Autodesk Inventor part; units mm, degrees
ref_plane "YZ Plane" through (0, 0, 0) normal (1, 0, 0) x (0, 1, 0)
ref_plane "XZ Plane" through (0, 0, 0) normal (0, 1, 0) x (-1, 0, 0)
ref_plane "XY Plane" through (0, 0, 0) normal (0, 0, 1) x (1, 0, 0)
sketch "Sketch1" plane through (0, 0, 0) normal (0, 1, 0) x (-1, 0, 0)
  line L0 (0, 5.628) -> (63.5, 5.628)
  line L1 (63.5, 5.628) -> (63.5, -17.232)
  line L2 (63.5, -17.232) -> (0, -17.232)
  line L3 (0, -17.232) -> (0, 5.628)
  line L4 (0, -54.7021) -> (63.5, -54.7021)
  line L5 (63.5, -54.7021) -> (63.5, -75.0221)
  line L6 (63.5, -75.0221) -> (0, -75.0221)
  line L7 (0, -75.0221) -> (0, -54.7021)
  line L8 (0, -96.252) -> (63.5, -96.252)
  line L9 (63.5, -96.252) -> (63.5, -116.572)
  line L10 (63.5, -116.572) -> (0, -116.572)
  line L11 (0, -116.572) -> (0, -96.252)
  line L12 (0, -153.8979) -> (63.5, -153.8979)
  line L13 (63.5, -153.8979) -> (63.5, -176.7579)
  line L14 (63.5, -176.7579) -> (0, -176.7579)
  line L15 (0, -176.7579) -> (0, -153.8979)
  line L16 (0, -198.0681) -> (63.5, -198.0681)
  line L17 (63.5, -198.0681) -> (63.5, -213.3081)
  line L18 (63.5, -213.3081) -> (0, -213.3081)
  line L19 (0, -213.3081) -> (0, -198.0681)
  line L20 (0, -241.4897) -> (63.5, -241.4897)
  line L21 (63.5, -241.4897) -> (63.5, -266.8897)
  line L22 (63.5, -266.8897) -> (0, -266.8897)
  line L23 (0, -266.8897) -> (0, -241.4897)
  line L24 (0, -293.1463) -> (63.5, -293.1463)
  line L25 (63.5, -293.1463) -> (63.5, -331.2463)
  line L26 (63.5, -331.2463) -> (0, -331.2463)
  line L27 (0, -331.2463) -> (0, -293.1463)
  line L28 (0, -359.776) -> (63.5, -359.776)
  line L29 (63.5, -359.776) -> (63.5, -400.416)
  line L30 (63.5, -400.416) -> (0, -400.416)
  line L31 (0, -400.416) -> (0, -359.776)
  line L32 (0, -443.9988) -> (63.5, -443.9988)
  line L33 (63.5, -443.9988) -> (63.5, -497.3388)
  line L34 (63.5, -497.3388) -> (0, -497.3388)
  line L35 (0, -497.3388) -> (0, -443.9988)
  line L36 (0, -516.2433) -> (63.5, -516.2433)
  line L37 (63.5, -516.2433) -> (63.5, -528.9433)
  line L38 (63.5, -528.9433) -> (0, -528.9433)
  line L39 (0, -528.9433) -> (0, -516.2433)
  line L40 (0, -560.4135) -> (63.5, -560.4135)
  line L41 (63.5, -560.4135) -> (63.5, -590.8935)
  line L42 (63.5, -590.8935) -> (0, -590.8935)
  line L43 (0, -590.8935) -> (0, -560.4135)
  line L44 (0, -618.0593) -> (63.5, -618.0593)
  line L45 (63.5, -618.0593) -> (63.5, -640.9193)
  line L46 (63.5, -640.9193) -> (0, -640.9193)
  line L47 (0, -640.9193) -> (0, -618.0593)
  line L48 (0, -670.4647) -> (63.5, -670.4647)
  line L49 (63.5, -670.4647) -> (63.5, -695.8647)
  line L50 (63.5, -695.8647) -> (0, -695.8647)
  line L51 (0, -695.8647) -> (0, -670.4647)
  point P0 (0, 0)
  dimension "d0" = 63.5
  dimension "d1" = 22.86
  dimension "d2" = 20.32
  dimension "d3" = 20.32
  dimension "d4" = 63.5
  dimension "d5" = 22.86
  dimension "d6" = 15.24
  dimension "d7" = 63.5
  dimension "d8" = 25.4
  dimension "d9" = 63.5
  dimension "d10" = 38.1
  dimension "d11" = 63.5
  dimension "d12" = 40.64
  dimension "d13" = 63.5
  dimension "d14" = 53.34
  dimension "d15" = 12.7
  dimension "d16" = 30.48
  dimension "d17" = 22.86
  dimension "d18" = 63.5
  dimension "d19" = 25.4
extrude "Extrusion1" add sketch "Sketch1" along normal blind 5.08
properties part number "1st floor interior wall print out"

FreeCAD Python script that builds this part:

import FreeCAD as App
import Part
import Sketcher
from FreeCAD import Vector
Q = App.Units.Quantity

doc = App.newDocument("Part")
params = doc.addObject("Spreadsheet::Sheet", "Params")
for row, (alias, value) in enumerate([
    ("sketch1_height", "1 in"),
    ("sketch1_width", "2.5 in"),
    ("sketch1_height2", "0.9 in"),
    ("sketch1_height3", "0.8 in"),
    ("sketch1_height4", "0.6 in"),
    ("pad1_length", "0.2 in"),
], start=1):
    params.set(f"A{row}", alias)
    params.set(f"B{row}", "=" + value)
    params.setAlias(f"B{row}", alias)

body = doc.addObject("PartDesign::Body", "Body")
body.AllowCompound = True

# Sketch on XZ plane
sketch1 = body.newObject("Sketcher::SketchObject", "Sketch")
sketch1.AttachmentSupport = (doc.getObject("XZ_Plane"), [""])
sketch1.MapMode = "FlatFace"
sketch1.addGeometry(Part.LineSegment(Vector(-64, 6, 0), Vector(0, 6, 0)), False)
sketch1.addGeometry(Part.LineSegment(Vector(0, 6, 0), Vector(0, -17, 0)), False)
sketch1.addGeometry(Part.LineSegment(Vector(0, -17, 0), Vector(-64, -17, 0)), False)
sketch1.addGeometry(Part.LineSegment(Vector(-64, -17, 0), Vector(-64, 6, 0)), False)
sketch1.addGeometry(Part.LineSegment(Vector(-64, -55, 0), Vector(0, -55, 0)), False)
sketch1.addGeometry(Part.LineSegment(Vector(0, -55, 0), Vector(0, -75, 0)), False)
sketch1.addGeometry(Part.LineSegment(Vector(0, -75, 0), Vector(-64, -75, 0)), False)
sketch1.addGeometry(Part.LineSegment(Vector(-64, -75, 0), Vector(-64, -55, 0)), False)
sketch1.addGeometry(Part.LineSegment(Vector(-64, -96, 0), Vector(0, -96, 0)), False)
sketch1.addGeometry(Part.LineSegment(Vector(0, -96, 0), Vector(0, -117, 0)), False)
sketch1.addGeometry(Part.LineSegment(Vector(0, -117, 0), Vector(-64, -117, 0)), False)
sketch1.addGeometry(Part.LineSegment(Vector(-64, -117, 0), Vector(-64, -96, 0)), False)
sketch1.addGeometry(Part.LineSegment(Vector(-64, -154, 0), Vector(0, -154, 0)), False)
sketch1.addGeometry(Part.LineSegment(Vector(0, -154, 0), Vector(0, -177, 0)), False)
sketch1.addGeometry(Part.LineSegment(Vector(0, -177, 0), Vector(-64, -177, 0)), False)
sketch1.addGeometry(Part.LineSegment(Vector(-64, -177, 0), Vector(-64, -154, 0)), False)
sketch1.addGeometry(Part.LineSegment(Vector(-64, -198, 0), Vector(0, -198, 0)), False)
sketch1.addGeometry(Part.LineSegment(Vector(0, -198, 0), Vector(0, -213, 0)), False)
sketch1.addGeometry(Part.LineSegment(Vector(0, -213, 0), Vector(-64, -213, 0)), False)
sketch1.addGeometry(Part.LineSegment(Vector(-64, -213, 0), Vector(-64, -198, 0)), False)
sketch1.addGeometry(Part.LineSegment(Vector(-64, -241, 0), Vector(0, -241, 0)), False)
sketch1.addGeometry(Part.LineSegment(Vector(0, -241, 0), Vector(0, -267, 0)), False)
sketch1.addGeometry(Part.LineSegment(Vector(0, -267, 0), Vector(-64, -267, 0)), False)
sketch1.addGeometry(Part.LineSegment(Vector(-64, -267, 0), Vector(-64, -241, 0)), False)
sketch1.addGeometry(Part.LineSegment(Vector(-64, -293, 0), Vector(0, -293, 0)), False)
sketch1.addGeometry(Part.LineSegment(Vector(0, -293, 0), Vector(0, -331, 0)), False)
sketch1.addGeometry(Part.LineSegment(Vector(0, -331, 0), Vector(-64, -331, 0)), False)
sketch1.addGeometry(Part.LineSegment(Vector(-64, -331, 0), Vector(-64, -293, 0)), False)
sketch1.addGeometry(Part.LineSegment(Vector(-64, -360, 0), Vector(0, -360, 0)), False)
sketch1.addGeometry(Part.LineSegment(Vector(0, -360, 0), Vector(0, -400, 0)), False)
sketch1.addGeometry(Part.LineSegment(Vector(0, -400, 0), Vector(-64, -400, 0)), False)
sketch1.addGeometry(Part.LineSegment(Vector(-64, -400, 0), Vector(-64, -360, 0)), False)
sketch1.addGeometry(Part.LineSegment(Vector(-64, -444, 0), Vector(0, -444, 0)), False)
sketch1.addGeometry(Part.LineSegment(Vector(0, -444, 0), Vector(0, -497, 0)), False)
sketch1.addGeometry(Part.LineSegment(Vector(0, -497, 0), Vector(-64, -497, 0)), False)
sketch1.addGeometry(Part.LineSegment(Vector(-64, -497, 0), Vector(-64, -444, 0)), False)
sketch1.addGeometry(Part.LineSegment(Vector(-64, -516, 0), Vector(0, -516, 0)), False)
sketch1.addGeometry(Part.LineSegment(Vector(0, -516, 0), Vector(0, -529, 0)), False)
sketch1.addGeometry(Part.LineSegment(Vector(0, -529, 0), Vector(-64, -529, 0)), False)
sketch1.addGeometry(Part.LineSegment(Vector(-64, -529, 0), Vector(-64, -516, 0)), False)
sketch1.addGeometry(Part.LineSegment(Vector(-64, -560, 0), Vector(0, -560, 0)), False)
sketch1.addGeometry(Part.LineSegment(Vector(0, -560, 0), Vector(0, -591, 0)), False)
sketch1.addGeometry(Part.LineSegment(Vector(0, -591, 0), Vector(-64, -591, 0)), False)
sketch1.addGeometry(Part.LineSegment(Vector(-64, -591, 0), Vector(-64, -560, 0)), False)
sketch1.addGeometry(Part.LineSegment(Vector(-64, -618, 0), Vector(0, -618, 0)), False)
sketch1.addGeometry(Part.LineSegment(Vector(0, -618, 0), Vector(0, -641, 0)), False)
sketch1.addGeometry(Part.LineSegment(Vector(0, -641, 0), Vector(-64, -641, 0)), False)
sketch1.addGeometry(Part.LineSegment(Vector(-64, -641, 0), Vector(-64, -618, 0)), False)
sketch1.addGeometry(Part.LineSegment(Vector(-64, -670, 0), Vector(0, -670, 0)), False)
sketch1.addGeometry(Part.LineSegment(Vector(0, -670, 0), Vector(0, -696, 0)), False)
sketch1.addGeometry(Part.LineSegment(Vector(0, -696, 0), Vector(-64, -696, 0)), False)
sketch1.addGeometry(Part.LineSegment(Vector(-64, -696, 0), Vector(-64, -670, 0)), False)
sketch1.addConstraint(Sketcher.Constraint("Coincident", 0, 2, 1, 1))
sketch1.addConstraint(Sketcher.Constraint("Coincident", 1, 2, 2, 1))
sketch1.addConstraint(Sketcher.Constraint("Coincident", 2, 2, 3, 1))
sketch1.addConstraint(Sketcher.Constraint("Coincident", 3, 2, 0, 1))
sketch1.addConstraint(Sketcher.Constraint("Coincident", 4, 2, 5, 1))
sketch1.addConstraint(Sketcher.Constraint("Coincident", 5, 2, 6, 1))
sketch1.addConstraint(Sketcher.Constraint("Coincident", 6, 2, 7, 1))
sketch1.addConstraint(Sketcher.Constraint("Coincident", 7, 2, 4, 1))
sketch1.addConstraint(Sketcher.Constraint("Coincident", 8, 2, 9, 1))
sketch1.addConstraint(Sketcher.Constraint("Coincident", 9, 2, 10, 1))
sketch1.addConstraint(Sketcher.Constraint("Coincident", 10, 2, 11, 1))
sketch1.addConstraint(Sketcher.Constraint("Coincident", 11, 2, 8, 1))
sketch1.addConstraint(Sketcher.Constraint("Coincident", 12, 2, 13, 1))
sketch1.addConstraint(Sketcher.Constraint("Coincident", 13, 2, 14, 1))
sketch1.addConstraint(Sketcher.Constraint("Coincident", 14, 2, 15, 1))
sketch1.addConstraint(Sketcher.Constraint("Coincident", 15, 2, 12, 1))
sketch1.addConstraint(Sketcher.Constraint("Coincident", 16, 2, 17, 1))
sketch1.addConstraint(Sketcher.Constraint("Coincident", 17, 2, 18, 1))
sketch1.addConstraint(Sketcher.Constraint("Coincident", 18, 2, 19, 1))
sketch1.addConstraint(Sketcher.Constraint("Coincident", 19, 2, 16, 1))
sketch1.addConstraint(Sketcher.Constraint("Coincident", 20, 2, 21, 1))
sketch1.addConstraint(Sketcher.Constraint("Coincident", 21, 2, 22, 1))
sketch1.addConstraint(Sketcher.Constraint("Coincident", 22, 2, 23, 1))
sketch1.addConstraint(Sketcher.Constraint("Coincident", 23, 2, 20, 1))
sketch1.addConstraint(Sketcher.Constraint("Coincident", 24, 2, 25, 1))
sketch1.addConstraint(Sketcher.Constraint("Coincident", 25, 2, 26, 1))
sketch1.addConstraint(Sketcher.Constraint("Coincident", 26, 2, 27, 1))
sketch1.addConstraint(Sketcher.Constraint("Coincident", 27, 2, 24, 1))
sketch1.addConstraint(Sketcher.Constraint("Coincident", 28, 2, 29, 1))
sketch1.addConstraint(Sketcher.Constraint("Coincident", 29, 2, 30, 1))
sketch1.addConstraint(Sketcher.Constraint("Coincident", 30, 2, 31, 1))
sketch1.addConstraint(Sketcher.Constraint("Coincident", 31, 2, 28, 1))
sketch1.addConstraint(Sketcher.Constraint("Coincident", 32, 2, 33, 1))
sketch1.addConstraint(Sketcher.Constraint("Coincident", 33, 2, 34, 1))
sketch1.addConstraint(Sketcher.Constraint("Coincident", 34, 2, 35, 1))
sketch1.addConstraint(Sketcher.Constraint("Coincident", 35, 2, 32, 1))
sketch1.addConstraint(Sketcher.Constraint("Coincident", 36, 2, 37, 1))
sketch1.addConstraint(Sketcher.Constraint("Coincident", 37, 2, 38, 1))
sketch1.addConstraint(Sketcher.Constraint("Coincident", 38, 2, 39, 1))
sketch1.addConstraint(Sketcher.Constraint("Coincident", 39, 2, 36, 1))
sketch1.addConstraint(Sketcher.Constraint("Coincident", 40, 2, 41, 1))
sketch1.addConstraint(Sketcher.Constraint("Coincident", 41, 2, 42, 1))
sketch1.addConstraint(Sketcher.Constraint("Coincident", 42, 2, 43, 1))
sketch1.addConstraint(Sketcher.Constraint("Coincident", 43, 2, 40, 1))
sketch1.addConstraint(Sketcher.Constraint("Coincident", 44, 2, 45, 1))
sketch1.addConstraint(Sketcher.Constraint("Coincident", 45, 2, 46, 1))
sketch1.addConstraint(Sketcher.Constraint("Coincident", 46, 2, 47, 1))
sketch1.addConstraint(Sketcher.Constraint("Coincident", 47, 2, 44, 1))
sketch1.addConstraint(Sketcher.Constraint("Coincident", 48, 2, 49, 1))
sketch1.addConstraint(Sketcher.Constraint("Coincident", 49, 2, 50, 1))
sketch1.addConstraint(Sketcher.Constraint("Coincident", 50, 2, 51, 1))
sketch1.addConstraint(Sketcher.Constraint("Coincident", 51, 2, 48, 1))
sketch1.addConstraint(Sketcher.Constraint("Horizontal", 0))
sketch1.addConstraint(Sketcher.Constraint("Vertical", 1))
sketch1.addConstraint(Sketcher.Constraint("Horizontal", 2))
sketch1.addConstraint(Sketcher.Constraint("Vertical", 3))
sketch1.addConstraint(Sketcher.Constraint("Horizontal", 4))
sketch1.addConstraint(Sketcher.Constraint("Vertical", 5))
sketch1.addConstraint(Sketcher.Constraint("Horizontal", 6))
sketch1.addConstraint(Sketcher.Constraint("Vertical", 7))
sketch1.addConstraint(Sketcher.Constraint("Horizontal", 8))
sketch1.addConstraint(Sketcher.Constraint("Vertical", 9))
sketch1.addConstraint(Sketcher.Constraint("Horizontal", 10))
sketch1.addConstraint(Sketcher.Constraint("Vertical", 11))
sketch1.addConstraint(Sketcher.Constraint("Horizontal", 12))
sketch1.addConstraint(Sketcher.Constraint("Vertical", 13))
sketch1.addConstraint(Sketcher.Constraint("Horizontal", 14))
sketch1.addConstraint(Sketcher.Constraint("Vertical", 15))
sketch1.addConstraint(Sketcher.Constraint("Horizontal", 16))
sketch1.addConstraint(Sketcher.Constraint("Vertical", 17))
sketch1.addConstraint(Sketcher.Constraint("Horizontal", 18))
sketch1.addConstraint(Sketcher.Constraint("Vertical", 19))
sketch1.addConstraint(Sketcher.Constraint("Horizontal", 20))
sketch1.addConstraint(Sketcher.Constraint("Vertical", 21))
sketch1.addConstraint(Sketcher.Constraint("Horizontal", 22))
sketch1.addConstraint(Sketcher.Constraint("Vertical", 23))
sketch1.addConstraint(Sketcher.Constraint("Horizontal", 24))
sketch1.addConstraint(Sketcher.Constraint("Vertical", 25))
sketch1.addConstraint(Sketcher.Constraint("Horizontal", 26))
sketch1.addConstraint(Sketcher.Constraint("Vertical", 27))
sketch1.addConstraint(Sketcher.Constraint("Horizontal", 28))
sketch1.addConstraint(Sketcher.Constraint("Vertical", 29))
sketch1.addConstraint(Sketcher.Constraint("Horizontal", 30))
sketch1.addConstraint(Sketcher.Constraint("Vertical", 31))
sketch1.addConstraint(Sketcher.Constraint("Horizontal", 32))
sketch1.addConstraint(Sketcher.Constraint("Vertical", 33))
sketch1.addConstraint(Sketcher.Constraint("Horizontal", 34))
sketch1.addConstraint(Sketcher.Constraint("Vertical", 35))
sketch1.addConstraint(Sketcher.Constraint("Horizontal", 36))
sketch1.addConstraint(Sketcher.Constraint("Vertical", 37))
sketch1.addConstraint(Sketcher.Constraint("Horizontal", 38))
sketch1.addConstraint(Sketcher.Constraint("Vertical", 39))
sketch1.addConstraint(Sketcher.Constraint("Horizontal", 40))
sketch1.addConstraint(Sketcher.Constraint("Vertical", 41))
sketch1.addConstraint(Sketcher.Constraint("Horizontal", 42))
sketch1.addConstraint(Sketcher.Constraint("Vertical", 43))
sketch1.addConstraint(Sketcher.Constraint("Horizontal", 44))
sketch1.addConstraint(Sketcher.Constraint("Vertical", 45))
sketch1.addConstraint(Sketcher.Constraint("Horizontal", 46))
sketch1.addConstraint(Sketcher.Constraint("Vertical", 47))
sketch1.addConstraint(Sketcher.Constraint("Horizontal", 48))
sketch1.addConstraint(Sketcher.Constraint("Vertical", 49))
sketch1.addConstraint(Sketcher.Constraint("Horizontal", 50))
sketch1.addConstraint(Sketcher.Constraint("Vertical", 51))
sketch1.addConstraint(Sketcher.Constraint("PointOnObject", 0, 2, -2))
sketch1.addConstraint(Sketcher.Constraint("PointOnObject", 4, 2, -2))
sketch1.addConstraint(Sketcher.Constraint("PointOnObject", 8, 2, -2))
sketch1.addConstraint(Sketcher.Constraint("PointOnObject", 12, 2, -2))
sketch1.addConstraint(Sketcher.Constraint("PointOnObject", 16, 2, -2))
sketch1.addConstraint(Sketcher.Constraint("PointOnObject", 20, 2, -2))
sketch1.addConstraint(Sketcher.Constraint("PointOnObject", 24, 2, -2))
sketch1.addConstraint(Sketcher.Constraint("PointOnObject", 28, 2, -2))
sketch1.addConstraint(Sketcher.Constraint("PointOnObject", 32, 2, -2))
sketch1.addConstraint(Sketcher.Constraint("PointOnObject", 36, 2, -2))
sketch1.addConstraint(Sketcher.Constraint("PointOnObject", 40, 2, -2))
sketch1.addConstraint(Sketcher.Constraint("PointOnObject", 44, 2, -2))
sketch1.addConstraint(Sketcher.Constraint("PointOnObject", 48, 2, -2))
sketch1.addConstraint(Sketcher.Constraint("Vertical", 3, 2, 6, 2))
sketch1.addConstraint(Sketcher.Constraint("Vertical", 7, 2, 10, 2))
sketch1.addConstraint(Sketcher.Constraint("Vertical", 11, 2, 14, 2))
sketch1.addConstraint(Sketcher.Constraint("Vertical", 15, 2, 18, 2))
sketch1.addConstraint(Sketcher.Constraint("Vertical", 19, 2, 22, 2))
sketch1.addConstraint(Sketcher.Constraint("Vertical", 23, 2, 26, 2))
sketch1.addConstraint(Sketcher.Constraint("Vertical", 27, 2, 30, 2))
sketch1.addConstraint(Sketcher.Constraint("Vertical", 31, 2, 34, 2))
sketch1.addConstraint(Sketcher.Constraint("Vertical", 35, 2, 38, 2))
sketch1.addConstraint(Sketcher.Constraint("Vertical", 39, 2, 42, 2))
sketch1.addConstraint(Sketcher.Constraint("Vertical", 43, 2, 46, 2))
sketch1.addConstraint(Sketcher.Constraint("Vertical", 47, 2, 50, 2))
sketch1.addConstraint(Sketcher.Constraint("Equal", 7, 9))
sketch1.addConstraint(Sketcher.Constraint("Equal", 3, 13))
sketch1.addConstraint(Sketcher.Constraint("Equal", 15, 45))
sketch1.addConstraint(Sketcher.Constraint("Equal", 23, 49))
sketch1.addConstraint(Sketcher.Constraint("DistanceY", 21, 2, 21, 1, Q("1 in")))
sketch1.addConstraint(Sketcher.Constraint("DistanceX", 0, 1, 0, 2, Q("2.5 in")))
sketch1.addConstraint(Sketcher.Constraint("DistanceY", 1, 2, 1, 1, Q("0.9 in")))
sketch1.addConstraint(Sketcher.Constraint("DistanceY", 5, 2, 5, 1, Q("0.8 in")))
sketch1.addConstraint(Sketcher.Constraint("DistanceY", 17, 2, 17, 1, Q("0.6 in")))
sketch1.addConstraint(Sketcher.Constraint("DistanceY", 25, 2, 25, 1, Q("1.5 in")))
sketch1.addConstraint(Sketcher.Constraint("DistanceY", 29, 2, 29, 1, Q("1.6 in")))
sketch1.addConstraint(Sketcher.Constraint("DistanceY", 33, 2, 33, 1, Q("2.1 in")))
sketch1.addConstraint(Sketcher.Constraint("DistanceY", 37, 2, 37, 1, Q("0.5 in")))
sketch1.addConstraint(Sketcher.Constraint("DistanceY", 41, 2, 41, 1, Q("1.2 in")))
sketch1.addConstraint(Sketcher.Constraint("DistanceY", 24, 2, -1, 1, Q("11.5412 in")))
sketch1.addConstraint(Sketcher.Constraint("DistanceY", 28, 2, -1, 1, Q("14.1644 in")))
sketch1.addConstraint(Sketcher.Constraint("DistanceY", 4, 2, 1, 2, Q("1.4752 in")))
sketch1.addConstraint(Sketcher.Constraint("DistanceY", 16, 2, 9, 2, Q("3.2085 in")))
sketch1.addConstraint(Sketcher.Constraint("DistanceY", 20, 2, 17, 2, Q("1.1095 in")))
sketch1.addConstraint(Sketcher.Constraint("DistanceY", 20, 2, 13, 2, Q("2.5485 in")))
sketch1.addConstraint(Sketcher.Constraint("DistanceY", 44, 2, 37, 2, Q("3.5085 in")))
sketch1.addConstraint(Sketcher.Constraint("DistanceY", 48, 2, 45, 2, Q("1.1632 in")))
sketch1.addConstraint(Sketcher.Constraint("DistanceY", -1, 1, 0, 2, Q("5.628 mm")))
sketch1.addConstraint(Sketcher.Constraint("DistanceY", 8, 2, -1, 1, Q("96.252 mm")))
sketch1.addConstraint(Sketcher.Constraint("DistanceY", 32, 2, -1, 1, Q("443.9988 mm")))
sketch1.addConstraint(Sketcher.Constraint("DistanceY", 36, 2, -1, 1, Q("516.2433 mm")))
sketch1.addConstraint(Sketcher.Constraint("DistanceY", 40, 2, -1, 1, Q("560.4135 mm")))
sketch1.setExpression("Constraints[133]", "Params.sketch1_height")
sketch1.setExpression("Constraints[134]", "Params.sketch1_width")
sketch1.setExpression("Constraints[135]", "Params.sketch1_height2")
sketch1.setExpression("Constraints[136]", "Params.sketch1_height3")
sketch1.setExpression("Constraints[137]", "Params.sketch1_height4")
pad1 = body.newObject("PartDesign::Pad", "Pad")
pad1.Profile = sketch1
pad1.setExpression("Length", "Params.pad1_length")
pad1.Reversed = True

doc.recompute()
